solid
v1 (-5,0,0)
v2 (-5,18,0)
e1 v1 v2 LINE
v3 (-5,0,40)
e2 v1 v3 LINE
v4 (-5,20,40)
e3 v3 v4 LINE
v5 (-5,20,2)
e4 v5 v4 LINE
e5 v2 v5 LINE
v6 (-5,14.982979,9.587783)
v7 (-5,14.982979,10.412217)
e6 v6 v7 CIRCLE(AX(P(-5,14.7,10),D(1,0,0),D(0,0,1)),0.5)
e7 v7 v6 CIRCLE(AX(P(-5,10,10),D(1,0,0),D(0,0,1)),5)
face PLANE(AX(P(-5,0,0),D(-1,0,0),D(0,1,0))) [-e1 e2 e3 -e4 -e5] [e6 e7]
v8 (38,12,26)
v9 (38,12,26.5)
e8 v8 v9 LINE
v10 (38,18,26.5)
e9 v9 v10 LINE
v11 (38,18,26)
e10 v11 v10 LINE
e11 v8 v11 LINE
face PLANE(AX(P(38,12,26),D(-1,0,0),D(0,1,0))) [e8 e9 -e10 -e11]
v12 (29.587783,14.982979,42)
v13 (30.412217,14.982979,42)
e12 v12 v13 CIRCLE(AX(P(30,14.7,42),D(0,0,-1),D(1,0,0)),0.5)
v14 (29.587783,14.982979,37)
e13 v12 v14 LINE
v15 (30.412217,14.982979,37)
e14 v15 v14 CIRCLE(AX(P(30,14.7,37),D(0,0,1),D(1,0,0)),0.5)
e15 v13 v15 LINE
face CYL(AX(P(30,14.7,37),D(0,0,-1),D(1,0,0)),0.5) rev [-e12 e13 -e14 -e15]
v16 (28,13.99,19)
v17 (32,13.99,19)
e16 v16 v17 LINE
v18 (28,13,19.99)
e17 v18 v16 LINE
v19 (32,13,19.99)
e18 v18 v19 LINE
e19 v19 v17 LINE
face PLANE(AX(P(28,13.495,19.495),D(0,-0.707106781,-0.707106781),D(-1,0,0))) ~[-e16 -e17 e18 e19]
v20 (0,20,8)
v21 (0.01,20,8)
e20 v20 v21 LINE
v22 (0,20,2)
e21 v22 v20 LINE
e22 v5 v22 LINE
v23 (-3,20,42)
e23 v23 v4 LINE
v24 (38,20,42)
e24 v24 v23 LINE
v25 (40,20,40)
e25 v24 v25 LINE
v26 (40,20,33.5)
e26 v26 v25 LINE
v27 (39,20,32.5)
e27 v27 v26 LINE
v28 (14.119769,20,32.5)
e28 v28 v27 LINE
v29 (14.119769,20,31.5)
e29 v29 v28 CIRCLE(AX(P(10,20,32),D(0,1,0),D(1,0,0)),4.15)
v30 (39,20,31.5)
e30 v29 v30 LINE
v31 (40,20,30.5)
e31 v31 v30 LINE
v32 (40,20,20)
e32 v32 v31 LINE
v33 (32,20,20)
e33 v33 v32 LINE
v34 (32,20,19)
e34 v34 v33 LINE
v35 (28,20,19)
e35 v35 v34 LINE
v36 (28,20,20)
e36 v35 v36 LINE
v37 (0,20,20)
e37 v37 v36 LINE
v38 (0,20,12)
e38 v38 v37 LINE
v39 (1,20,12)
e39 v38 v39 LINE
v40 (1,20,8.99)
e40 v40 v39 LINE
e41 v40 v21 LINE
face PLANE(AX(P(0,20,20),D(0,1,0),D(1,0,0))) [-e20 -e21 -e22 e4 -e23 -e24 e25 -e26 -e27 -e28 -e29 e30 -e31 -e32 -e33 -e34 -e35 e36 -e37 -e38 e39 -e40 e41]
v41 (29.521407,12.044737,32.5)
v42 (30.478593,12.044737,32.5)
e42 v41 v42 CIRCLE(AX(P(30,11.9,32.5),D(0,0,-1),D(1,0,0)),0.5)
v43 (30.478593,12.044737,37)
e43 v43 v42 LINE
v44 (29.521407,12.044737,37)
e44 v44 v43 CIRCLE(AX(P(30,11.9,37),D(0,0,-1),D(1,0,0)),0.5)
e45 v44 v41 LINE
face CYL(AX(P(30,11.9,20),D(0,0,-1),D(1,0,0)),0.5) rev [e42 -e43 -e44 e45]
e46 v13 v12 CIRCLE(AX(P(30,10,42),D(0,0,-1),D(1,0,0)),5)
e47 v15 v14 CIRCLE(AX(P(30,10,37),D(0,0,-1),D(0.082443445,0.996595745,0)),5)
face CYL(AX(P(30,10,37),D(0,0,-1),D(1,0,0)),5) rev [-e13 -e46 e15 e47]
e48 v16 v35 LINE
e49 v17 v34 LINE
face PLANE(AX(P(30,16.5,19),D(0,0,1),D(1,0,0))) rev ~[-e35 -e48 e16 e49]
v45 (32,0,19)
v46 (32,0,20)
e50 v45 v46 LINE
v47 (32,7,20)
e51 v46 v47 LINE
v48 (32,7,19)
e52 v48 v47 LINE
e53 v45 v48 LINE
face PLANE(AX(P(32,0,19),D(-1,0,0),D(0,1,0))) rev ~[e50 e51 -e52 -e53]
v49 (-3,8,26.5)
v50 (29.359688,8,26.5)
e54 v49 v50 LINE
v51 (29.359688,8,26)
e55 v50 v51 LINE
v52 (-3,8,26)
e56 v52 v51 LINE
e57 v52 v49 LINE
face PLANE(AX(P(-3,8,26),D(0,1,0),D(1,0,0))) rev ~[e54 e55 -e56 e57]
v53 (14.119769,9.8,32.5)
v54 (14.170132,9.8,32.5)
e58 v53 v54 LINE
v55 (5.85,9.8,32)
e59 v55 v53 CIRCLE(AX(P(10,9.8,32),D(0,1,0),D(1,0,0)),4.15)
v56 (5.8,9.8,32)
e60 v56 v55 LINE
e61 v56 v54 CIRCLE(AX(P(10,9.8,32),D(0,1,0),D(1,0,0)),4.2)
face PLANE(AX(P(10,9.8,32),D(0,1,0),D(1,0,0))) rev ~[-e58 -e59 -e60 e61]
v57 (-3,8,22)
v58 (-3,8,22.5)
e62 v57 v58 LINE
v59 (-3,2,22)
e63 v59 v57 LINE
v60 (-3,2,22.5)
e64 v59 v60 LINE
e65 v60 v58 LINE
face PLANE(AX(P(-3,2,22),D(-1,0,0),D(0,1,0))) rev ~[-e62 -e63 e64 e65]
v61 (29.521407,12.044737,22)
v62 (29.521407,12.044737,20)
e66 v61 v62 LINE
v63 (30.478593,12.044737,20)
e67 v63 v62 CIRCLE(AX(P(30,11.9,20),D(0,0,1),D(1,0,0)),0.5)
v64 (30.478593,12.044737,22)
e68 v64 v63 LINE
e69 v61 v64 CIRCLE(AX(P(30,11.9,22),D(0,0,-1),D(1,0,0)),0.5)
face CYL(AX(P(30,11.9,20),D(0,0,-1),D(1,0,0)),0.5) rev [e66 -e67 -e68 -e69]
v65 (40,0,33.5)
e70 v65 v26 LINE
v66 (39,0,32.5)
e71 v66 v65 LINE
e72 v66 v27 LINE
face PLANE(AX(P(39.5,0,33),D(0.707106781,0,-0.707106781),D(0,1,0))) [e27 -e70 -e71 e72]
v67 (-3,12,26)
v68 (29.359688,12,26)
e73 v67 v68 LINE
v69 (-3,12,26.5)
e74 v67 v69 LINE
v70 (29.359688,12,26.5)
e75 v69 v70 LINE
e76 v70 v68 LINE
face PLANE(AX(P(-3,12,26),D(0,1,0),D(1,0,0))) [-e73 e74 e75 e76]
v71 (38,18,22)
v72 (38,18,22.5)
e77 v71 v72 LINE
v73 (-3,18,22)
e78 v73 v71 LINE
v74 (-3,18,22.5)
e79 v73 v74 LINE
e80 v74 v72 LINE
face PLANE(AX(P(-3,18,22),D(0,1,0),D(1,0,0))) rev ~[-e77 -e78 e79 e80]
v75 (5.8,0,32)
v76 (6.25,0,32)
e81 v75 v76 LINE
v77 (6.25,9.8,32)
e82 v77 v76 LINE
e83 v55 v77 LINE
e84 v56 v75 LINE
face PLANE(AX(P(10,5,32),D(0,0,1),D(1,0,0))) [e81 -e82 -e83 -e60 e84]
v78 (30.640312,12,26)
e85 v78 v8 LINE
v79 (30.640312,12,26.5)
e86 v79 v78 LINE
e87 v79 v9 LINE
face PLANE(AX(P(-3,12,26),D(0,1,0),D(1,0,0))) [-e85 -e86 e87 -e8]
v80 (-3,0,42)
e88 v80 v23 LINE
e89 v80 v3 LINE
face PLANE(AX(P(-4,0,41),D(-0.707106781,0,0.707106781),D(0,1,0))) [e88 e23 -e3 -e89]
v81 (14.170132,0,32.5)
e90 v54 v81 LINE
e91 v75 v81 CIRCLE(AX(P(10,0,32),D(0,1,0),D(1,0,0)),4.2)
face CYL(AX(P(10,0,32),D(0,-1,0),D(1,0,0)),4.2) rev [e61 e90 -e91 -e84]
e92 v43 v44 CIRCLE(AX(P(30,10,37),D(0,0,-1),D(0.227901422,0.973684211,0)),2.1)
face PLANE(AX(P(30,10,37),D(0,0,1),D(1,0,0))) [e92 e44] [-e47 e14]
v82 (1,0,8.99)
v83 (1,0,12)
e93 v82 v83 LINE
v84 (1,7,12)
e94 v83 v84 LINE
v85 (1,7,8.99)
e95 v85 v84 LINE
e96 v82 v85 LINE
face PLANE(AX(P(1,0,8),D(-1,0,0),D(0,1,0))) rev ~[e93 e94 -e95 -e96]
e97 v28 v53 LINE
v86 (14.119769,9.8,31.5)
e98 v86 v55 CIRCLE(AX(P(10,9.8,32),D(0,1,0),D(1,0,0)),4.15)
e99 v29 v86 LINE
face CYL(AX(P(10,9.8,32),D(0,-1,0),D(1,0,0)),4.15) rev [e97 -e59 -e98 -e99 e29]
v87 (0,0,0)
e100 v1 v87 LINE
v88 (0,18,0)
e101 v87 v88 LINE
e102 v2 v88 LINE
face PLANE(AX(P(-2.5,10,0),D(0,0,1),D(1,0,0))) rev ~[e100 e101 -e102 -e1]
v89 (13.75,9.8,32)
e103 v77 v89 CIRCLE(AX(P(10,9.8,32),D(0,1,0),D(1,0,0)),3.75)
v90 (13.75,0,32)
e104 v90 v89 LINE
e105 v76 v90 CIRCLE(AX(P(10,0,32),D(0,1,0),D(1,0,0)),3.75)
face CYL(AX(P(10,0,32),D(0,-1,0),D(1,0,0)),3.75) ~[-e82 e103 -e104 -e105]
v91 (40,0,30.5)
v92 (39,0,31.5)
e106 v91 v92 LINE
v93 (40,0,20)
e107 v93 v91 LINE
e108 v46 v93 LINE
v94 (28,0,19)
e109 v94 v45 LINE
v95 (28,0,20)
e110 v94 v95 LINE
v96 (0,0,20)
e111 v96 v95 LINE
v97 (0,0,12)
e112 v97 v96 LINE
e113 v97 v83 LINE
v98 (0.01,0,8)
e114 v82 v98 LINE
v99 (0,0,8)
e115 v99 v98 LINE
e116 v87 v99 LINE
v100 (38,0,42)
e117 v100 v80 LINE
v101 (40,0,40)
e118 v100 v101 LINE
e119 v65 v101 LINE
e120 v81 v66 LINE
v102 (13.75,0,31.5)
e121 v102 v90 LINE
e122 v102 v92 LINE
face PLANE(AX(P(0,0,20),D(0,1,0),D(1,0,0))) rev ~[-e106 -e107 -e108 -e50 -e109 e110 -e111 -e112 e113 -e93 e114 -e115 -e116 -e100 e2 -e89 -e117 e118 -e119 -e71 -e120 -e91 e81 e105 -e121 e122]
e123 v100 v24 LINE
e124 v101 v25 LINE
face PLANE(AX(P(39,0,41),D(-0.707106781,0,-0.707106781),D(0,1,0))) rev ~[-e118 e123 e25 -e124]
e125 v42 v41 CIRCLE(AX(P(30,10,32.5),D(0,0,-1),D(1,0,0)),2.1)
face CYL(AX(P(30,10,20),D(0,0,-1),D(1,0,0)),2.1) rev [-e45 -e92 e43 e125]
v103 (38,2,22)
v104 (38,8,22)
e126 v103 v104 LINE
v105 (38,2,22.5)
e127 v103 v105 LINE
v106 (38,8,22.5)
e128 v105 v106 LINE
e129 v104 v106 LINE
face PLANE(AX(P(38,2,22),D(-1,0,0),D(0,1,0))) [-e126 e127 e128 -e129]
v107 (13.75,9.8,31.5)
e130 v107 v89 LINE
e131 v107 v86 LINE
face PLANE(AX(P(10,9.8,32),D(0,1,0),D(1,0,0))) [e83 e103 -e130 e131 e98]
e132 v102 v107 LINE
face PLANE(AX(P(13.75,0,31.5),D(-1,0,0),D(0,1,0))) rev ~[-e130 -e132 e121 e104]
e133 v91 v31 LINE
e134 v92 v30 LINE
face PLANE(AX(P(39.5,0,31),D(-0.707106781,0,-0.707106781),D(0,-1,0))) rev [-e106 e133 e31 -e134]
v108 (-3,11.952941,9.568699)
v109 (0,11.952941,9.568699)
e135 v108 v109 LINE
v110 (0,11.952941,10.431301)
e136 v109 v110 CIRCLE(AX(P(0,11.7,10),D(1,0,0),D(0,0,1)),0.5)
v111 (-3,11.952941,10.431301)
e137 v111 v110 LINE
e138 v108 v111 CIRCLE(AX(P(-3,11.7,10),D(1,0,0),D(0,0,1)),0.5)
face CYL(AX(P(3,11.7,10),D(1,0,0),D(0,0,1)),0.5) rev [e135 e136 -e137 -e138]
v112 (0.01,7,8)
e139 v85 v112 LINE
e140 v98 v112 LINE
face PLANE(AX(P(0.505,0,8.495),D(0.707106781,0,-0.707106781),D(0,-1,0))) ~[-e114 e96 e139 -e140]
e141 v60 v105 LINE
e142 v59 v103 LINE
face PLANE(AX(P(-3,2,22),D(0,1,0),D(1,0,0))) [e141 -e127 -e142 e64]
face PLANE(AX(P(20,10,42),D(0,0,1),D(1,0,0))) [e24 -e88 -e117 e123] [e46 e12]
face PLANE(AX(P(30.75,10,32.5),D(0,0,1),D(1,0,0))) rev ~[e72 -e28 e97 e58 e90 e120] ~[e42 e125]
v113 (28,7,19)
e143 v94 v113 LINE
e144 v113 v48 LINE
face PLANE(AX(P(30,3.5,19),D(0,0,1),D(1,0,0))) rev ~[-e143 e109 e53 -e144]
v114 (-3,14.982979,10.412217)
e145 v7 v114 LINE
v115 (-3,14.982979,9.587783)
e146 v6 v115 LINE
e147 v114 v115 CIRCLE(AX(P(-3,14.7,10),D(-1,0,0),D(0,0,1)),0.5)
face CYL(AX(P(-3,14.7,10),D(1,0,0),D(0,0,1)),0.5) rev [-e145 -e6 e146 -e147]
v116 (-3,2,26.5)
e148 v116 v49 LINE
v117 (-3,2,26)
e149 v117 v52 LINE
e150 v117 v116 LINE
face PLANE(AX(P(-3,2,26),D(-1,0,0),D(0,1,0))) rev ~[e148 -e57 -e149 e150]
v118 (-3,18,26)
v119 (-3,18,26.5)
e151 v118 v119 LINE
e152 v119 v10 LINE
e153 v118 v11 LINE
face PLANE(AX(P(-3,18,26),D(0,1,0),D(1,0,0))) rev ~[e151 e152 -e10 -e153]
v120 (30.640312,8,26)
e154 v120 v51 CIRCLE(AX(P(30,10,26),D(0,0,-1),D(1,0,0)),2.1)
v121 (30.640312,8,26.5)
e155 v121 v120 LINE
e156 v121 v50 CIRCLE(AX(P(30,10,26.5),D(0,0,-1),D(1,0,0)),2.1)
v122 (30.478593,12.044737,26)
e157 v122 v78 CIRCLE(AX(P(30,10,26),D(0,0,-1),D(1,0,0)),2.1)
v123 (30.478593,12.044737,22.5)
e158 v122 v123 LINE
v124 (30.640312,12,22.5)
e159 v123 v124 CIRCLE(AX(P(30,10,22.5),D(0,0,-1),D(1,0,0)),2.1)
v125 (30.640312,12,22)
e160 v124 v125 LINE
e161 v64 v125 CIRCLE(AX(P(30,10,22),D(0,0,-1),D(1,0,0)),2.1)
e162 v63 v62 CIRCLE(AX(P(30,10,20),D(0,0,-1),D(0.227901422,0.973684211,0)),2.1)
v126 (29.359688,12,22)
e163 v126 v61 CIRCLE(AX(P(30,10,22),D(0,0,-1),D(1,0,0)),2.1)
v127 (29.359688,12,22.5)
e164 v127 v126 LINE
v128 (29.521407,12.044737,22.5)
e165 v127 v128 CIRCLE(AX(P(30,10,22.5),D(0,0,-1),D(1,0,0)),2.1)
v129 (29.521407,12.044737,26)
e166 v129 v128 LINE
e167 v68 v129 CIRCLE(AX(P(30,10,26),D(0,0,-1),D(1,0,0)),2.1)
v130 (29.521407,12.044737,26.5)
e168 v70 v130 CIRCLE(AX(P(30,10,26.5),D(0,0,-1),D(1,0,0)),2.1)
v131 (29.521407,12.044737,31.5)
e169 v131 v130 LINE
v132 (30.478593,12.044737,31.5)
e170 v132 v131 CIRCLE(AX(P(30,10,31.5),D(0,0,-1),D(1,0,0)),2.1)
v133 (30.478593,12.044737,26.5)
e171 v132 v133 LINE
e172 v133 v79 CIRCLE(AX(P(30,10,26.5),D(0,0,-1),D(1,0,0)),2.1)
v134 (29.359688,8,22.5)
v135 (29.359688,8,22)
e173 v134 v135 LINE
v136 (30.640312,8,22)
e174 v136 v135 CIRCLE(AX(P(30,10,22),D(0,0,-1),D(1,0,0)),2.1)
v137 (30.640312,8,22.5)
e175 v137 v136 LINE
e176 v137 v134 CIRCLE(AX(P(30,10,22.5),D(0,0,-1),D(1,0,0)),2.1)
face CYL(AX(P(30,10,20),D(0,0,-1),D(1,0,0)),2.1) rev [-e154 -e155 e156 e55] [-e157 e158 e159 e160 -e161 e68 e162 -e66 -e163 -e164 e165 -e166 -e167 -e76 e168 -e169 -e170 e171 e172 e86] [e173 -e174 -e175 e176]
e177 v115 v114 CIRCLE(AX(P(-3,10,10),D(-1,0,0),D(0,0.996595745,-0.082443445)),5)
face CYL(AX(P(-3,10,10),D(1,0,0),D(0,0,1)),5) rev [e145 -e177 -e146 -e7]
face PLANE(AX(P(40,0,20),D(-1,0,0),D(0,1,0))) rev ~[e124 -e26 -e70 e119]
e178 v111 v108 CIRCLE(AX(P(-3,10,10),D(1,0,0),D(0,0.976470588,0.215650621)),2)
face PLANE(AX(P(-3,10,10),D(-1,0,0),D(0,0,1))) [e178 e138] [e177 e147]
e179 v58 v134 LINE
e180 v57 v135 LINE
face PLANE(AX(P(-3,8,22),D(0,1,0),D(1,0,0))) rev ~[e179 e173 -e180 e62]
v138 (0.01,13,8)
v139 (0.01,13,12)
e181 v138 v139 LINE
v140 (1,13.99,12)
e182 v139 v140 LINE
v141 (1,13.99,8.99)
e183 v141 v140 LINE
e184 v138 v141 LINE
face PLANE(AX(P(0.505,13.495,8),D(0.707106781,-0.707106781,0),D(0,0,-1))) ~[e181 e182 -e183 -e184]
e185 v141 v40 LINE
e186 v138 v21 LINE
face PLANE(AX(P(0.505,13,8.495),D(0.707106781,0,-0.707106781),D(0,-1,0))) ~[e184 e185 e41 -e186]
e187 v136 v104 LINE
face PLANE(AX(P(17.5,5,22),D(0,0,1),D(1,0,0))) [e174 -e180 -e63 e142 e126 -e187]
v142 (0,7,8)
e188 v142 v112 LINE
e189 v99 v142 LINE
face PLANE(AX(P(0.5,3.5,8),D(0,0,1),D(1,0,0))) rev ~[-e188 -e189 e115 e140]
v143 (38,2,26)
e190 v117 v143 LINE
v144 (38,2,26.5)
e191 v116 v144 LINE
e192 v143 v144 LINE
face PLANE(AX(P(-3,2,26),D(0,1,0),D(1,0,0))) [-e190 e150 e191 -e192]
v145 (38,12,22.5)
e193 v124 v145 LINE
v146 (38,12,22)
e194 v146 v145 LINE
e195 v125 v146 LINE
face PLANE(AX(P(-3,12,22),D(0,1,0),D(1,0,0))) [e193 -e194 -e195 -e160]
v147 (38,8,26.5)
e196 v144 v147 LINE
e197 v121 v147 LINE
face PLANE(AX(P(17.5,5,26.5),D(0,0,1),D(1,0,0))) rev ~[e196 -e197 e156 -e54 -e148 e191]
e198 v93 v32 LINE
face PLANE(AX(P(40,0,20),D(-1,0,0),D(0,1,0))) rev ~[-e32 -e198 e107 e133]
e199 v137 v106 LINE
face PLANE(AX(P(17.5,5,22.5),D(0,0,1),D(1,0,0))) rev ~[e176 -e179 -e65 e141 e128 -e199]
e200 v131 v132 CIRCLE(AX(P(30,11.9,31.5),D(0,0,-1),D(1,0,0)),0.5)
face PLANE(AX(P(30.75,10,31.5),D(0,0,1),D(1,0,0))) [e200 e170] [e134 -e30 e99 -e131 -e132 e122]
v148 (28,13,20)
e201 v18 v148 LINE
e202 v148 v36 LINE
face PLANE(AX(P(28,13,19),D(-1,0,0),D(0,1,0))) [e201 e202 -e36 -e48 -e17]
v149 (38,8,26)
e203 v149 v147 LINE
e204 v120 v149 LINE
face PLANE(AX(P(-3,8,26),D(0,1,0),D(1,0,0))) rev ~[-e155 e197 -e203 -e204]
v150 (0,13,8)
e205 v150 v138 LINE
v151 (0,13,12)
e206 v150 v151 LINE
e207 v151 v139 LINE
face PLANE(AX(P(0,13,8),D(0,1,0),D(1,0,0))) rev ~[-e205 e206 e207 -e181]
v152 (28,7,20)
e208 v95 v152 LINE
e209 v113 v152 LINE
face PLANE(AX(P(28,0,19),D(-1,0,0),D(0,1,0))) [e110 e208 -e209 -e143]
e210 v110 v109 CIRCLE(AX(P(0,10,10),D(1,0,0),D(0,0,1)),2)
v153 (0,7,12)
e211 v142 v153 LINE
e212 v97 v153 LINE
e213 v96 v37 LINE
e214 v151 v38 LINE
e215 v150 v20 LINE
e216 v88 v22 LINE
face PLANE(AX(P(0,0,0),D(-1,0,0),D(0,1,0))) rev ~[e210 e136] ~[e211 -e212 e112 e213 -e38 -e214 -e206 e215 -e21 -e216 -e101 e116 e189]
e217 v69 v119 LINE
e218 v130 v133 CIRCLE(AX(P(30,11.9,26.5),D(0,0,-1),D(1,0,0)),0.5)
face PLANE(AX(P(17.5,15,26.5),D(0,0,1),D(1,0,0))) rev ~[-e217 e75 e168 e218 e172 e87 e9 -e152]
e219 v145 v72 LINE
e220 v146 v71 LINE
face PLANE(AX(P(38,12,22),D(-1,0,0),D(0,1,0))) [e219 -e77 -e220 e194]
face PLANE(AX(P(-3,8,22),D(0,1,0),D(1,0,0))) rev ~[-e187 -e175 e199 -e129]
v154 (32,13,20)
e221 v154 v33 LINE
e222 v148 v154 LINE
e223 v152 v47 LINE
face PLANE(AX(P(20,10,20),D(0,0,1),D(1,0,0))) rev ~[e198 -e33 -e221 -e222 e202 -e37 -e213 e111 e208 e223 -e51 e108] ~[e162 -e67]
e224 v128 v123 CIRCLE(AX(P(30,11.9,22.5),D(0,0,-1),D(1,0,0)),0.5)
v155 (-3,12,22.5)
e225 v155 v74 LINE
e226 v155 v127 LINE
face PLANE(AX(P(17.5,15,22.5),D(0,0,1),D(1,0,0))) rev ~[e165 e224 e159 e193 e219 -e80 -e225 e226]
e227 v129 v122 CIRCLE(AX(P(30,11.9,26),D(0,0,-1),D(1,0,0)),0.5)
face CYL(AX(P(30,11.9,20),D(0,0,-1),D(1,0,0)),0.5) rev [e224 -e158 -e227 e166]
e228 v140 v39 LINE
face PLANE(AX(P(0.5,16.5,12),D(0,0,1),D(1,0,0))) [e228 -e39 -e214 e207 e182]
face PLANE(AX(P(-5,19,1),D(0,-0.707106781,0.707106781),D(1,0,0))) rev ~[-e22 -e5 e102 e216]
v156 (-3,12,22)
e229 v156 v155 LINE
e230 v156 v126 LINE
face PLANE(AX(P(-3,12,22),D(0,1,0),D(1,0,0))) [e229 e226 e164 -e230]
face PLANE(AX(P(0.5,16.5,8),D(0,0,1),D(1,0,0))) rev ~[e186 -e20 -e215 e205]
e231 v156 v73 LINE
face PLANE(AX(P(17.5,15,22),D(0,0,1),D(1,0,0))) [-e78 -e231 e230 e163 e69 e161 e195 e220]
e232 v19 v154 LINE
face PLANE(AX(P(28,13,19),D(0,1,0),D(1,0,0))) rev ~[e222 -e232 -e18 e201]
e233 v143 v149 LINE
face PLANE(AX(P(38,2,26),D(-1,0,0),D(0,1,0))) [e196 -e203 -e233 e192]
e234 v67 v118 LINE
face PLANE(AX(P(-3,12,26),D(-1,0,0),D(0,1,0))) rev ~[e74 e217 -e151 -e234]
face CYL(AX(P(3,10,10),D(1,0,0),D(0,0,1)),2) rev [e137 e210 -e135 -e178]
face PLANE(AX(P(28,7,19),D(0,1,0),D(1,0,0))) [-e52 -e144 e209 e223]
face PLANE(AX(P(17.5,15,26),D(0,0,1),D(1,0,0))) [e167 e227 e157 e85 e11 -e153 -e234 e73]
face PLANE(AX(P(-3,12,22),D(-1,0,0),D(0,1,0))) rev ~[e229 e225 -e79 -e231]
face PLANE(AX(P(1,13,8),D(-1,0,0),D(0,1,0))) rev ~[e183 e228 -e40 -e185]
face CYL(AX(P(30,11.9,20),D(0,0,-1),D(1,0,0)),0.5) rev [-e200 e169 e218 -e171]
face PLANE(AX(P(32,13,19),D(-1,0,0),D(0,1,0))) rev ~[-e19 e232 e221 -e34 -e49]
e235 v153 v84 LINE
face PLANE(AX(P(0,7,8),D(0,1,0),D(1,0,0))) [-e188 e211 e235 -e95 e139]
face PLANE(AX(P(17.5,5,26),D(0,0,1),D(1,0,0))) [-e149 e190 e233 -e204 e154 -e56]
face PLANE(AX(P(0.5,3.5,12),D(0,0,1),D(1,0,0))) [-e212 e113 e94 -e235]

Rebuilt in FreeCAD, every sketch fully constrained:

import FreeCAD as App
import Part
import Sketcher
from FreeCAD import Vector


def edges_at(feature, points):
    """Names of the edges that pass closest to the given points."""
    edges = feature.Shape.Edges
    near = lambda p: min(range(len(edges)), key=lambda i: edges[i].distToShape(Part.Vertex(*p))[0])
    return sorted({f"Edge{near(p) + 1}" for p in points})


def add_polygon(sketch, points):
    """Adds a closed chain of lines whose ends are joined by coincident constraints."""
    first, n = sketch.GeometryCount, len(points)
    for a, b in zip(points, points[1:] + points[:1]):
        sketch.addGeometry(Part.LineSegment(App.Vector(*a, 0), App.Vector(*b, 0)), False)
    for i in range(n):
        sketch.addConstraint(Sketcher.Constraint("Coincident", first + i, 2, first + (i + 1) % n, 1))

doc = App.newDocument("Part")
body = doc.addObject("PartDesign::Body", "Body")

# Sketch on XY plane
sketch1 = body.newObject("Sketcher::SketchObject", "Sketch")
sketch1.AttachmentSupport = (doc.getObject("XY_Plane"), [""])
sketch1.MapMode = "FlatFace"
sketch1.AttachmentOffset = App.Placement(Vector(0, 0, 26), App.Rotation())
add_polygon(sketch1, [(-3, 8), (-3, 2), (38, 2), (38, 8)])  # lines 0-3
sketch1.addConstraint([
    Sketcher.Constraint("Vertical", 0),
    Sketcher.Constraint("Horizontal", 1),
    Sketcher.Constraint("Vertical", 2),
    Sketcher.Constraint("Horizontal", 3),
    Sketcher.Constraint("DistanceX", 1, 1, 1, 2, 41.0),
    Sketcher.Constraint("DistanceY", 0, 2, 0, 1, 6.0),
    Sketcher.Constraint("DistanceX", 0, 2, -1, 1, 3.0),
    Sketcher.Constraint("DistanceY", -1, 1, 0, 2, 2.0),
])
pad1 = body.newObject("PartDesign::Pad", "Pad")
pad1.Profile = sketch1
pad1.Length = 0.5
body2 = doc.addObject("PartDesign::Body", "Body001")

# Sketch on XY plane
sketch2 = body2.newObject("Sketcher::SketchObject", "Sketch001")
sketch2.AttachmentSupport = (doc.getObject("XY_Plane001"), [""])
sketch2.MapMode = "FlatFace"
sketch2.AttachmentOffset = App.Placement(Vector(0, 0, 26), App.Rotation())
add_polygon(sketch2, [(-3, 18), (-3, 12), (38, 12), (38, 18)])  # lines 0-3
sketch2.addConstraint([
    Sketcher.Constraint("Vertical", 0),
    Sketcher.Constraint("Horizontal", 1),
    Sketcher.Constraint("Vertical", 2),
    Sketcher.Constraint("Horizontal", 3),
    Sketcher.Constraint("DistanceX", 1, 1, 1, 2, 41.0),
    Sketcher.Constraint("DistanceY", 0, 2, 0, 1, 6.0),
    Sketcher.Constraint("DistanceX", 0, 2, -1, 1, 3.0),
    Sketcher.Constraint("DistanceY", -1, 1, 0, 2, 12.0),
])
pad2 = body2.newObject("PartDesign::Pad", "Pad001")
pad2.Profile = sketch2
pad2.Length = 0.5
body3 = doc.addObject("PartDesign::Body", "Body002")

# Sketch on XY plane
sketch3 = body3.newObject("Sketcher::SketchObject", "Sketch002")
sketch3.AttachmentSupport = (doc.getObject("XY_Plane002"), [""])
sketch3.MapMode = "FlatFace"
sketch3.AttachmentOffset = App.Placement(Vector(0, 0, 22), App.Rotation())
add_polygon(sketch3, [(-3, 18), (-3, 12), (38, 12), (38, 18)])  # lines 0-3
sketch3.addConstraint([
    Sketcher.Constraint("Vertical", 0),
    Sketcher.Constraint("Horizontal", 1),
    Sketcher.Constraint("Vertical", 2),
    Sketcher.Constraint("Horizontal", 3),
    Sketcher.Constraint("DistanceX", 1, 1, 1, 2, 41.0),
    Sketcher.Constraint("DistanceY", 0, 2, 0, 1, 6.0),
    Sketcher.Constraint("DistanceX", 0, 2, -1, 1, 3.0),
    Sketcher.Constraint("DistanceY", -1, 1, 0, 2, 12.0),
])
pad3 = body3.newObject("PartDesign::Pad", "Pad002")
pad3.Profile = sketch3
pad3.Length = 0.5
body4 = doc.addObject("PartDesign::Body", "Body003")
body4.AllowCompound = True

# Sketch on XY plane
sketch4 = body4.newObject("Sketcher::SketchObject", "Sketch003")
sketch4.AttachmentSupport = (doc.getObject("XY_Plane003"), [""])
sketch4.MapMode = "FlatFace"
sketch4.AttachmentOffset = App.Placement(Vector(0, 0, 22), App.Rotation())
add_polygon(sketch4, [(-3, 8), (-3, 2), (38, 2), (38, 8)])  # lines 0-3
sketch4.addConstraint([
    Sketcher.Constraint("Vertical", 0),
    Sketcher.Constraint("Horizontal", 1),
    Sketcher.Constraint("Vertical", 2),
    Sketcher.Constraint("Horizontal", 3),
    Sketcher.Constraint("DistanceX", 1, 1, 1, 2, 41.0),
    Sketcher.Constraint("DistanceY", 0, 2, 0, 1, 6.0),
    Sketcher.Constraint("DistanceX", 0, 2, -1, 1, 3.0),
    Sketcher.Constraint("DistanceY", -1, 1, 0, 2, 2.0),
])
pad4 = body4.newObject("PartDesign::Pad", "Pad003")
pad4.Profile = sketch4
pad4.Length = 0.5
doc.recompute()

boolean = body4.newObject("PartDesign::Boolean", "Boolean")
boolean.Type = "Fuse"
boolean.addObjects([body])
doc.recompute()

boolean2 = body4.newObject("PartDesign::Boolean", "Boolean001")
boolean2.Type = "Fuse"
boolean2.addObjects([body2])
doc.recompute()

boolean3 = body4.newObject("PartDesign::Boolean", "Boolean002")
boolean3.Type = "Fuse"
boolean3.addObjects([body3])
body5 = doc.addObject("PartDesign::Body", "Body004")

# Sketch on XY plane
sketch5 = body5.newObject("Sketcher::SketchObject", "Sketch004")
sketch5.AttachmentSupport = (doc.getObject("XY_Plane004"), [""])
sketch5.MapMode = "FlatFace"
sketch5.AttachmentOffset = App.Placement(Vector(0, 0, 8), App.Rotation())
add_polygon(sketch5, [(0, 20), (0, 13), (1, 13), (1, 20)])  # lines 0-3
sketch5.addConstraint([
    Sketcher.Constraint("Vertical", 0),
    Sketcher.Constraint("Horizontal", 1),
    Sketcher.Constraint("Vertical", 2),
    Sketcher.Constraint("Horizontal", 3),
    Sketcher.Constraint("PointOnObject", 0, 2, -2),
    Sketcher.Constraint("DistanceX", 1, 1, 1, 2, 1.0),
    Sketcher.Constraint("DistanceY", 0, 2, 0, 1, 7.0),
    Sketcher.Constraint("DistanceY", -1, 1, 0, 2, 13.0),
])
pad5 = body5.newObject("PartDesign::Pad", "Pad004")
pad5.Profile = sketch5
pad5.Length = 4
doc.recompute()

chamfer = body5.newObject("PartDesign::Chamfer", "Chamfer")
chamfer.Base = (pad5, edges_at(pad5, [(1, 13, 10), (1, 16.5, 8)]))
chamfer.Size = 0.99
body6 = doc.addObject("PartDesign::Body", "Body005")

# Sketch on XY plane
sketch6 = body6.newObject("Sketcher::SketchObject", "Sketch005")
sketch6.AttachmentSupport = (doc.getObject("XY_Plane005"), [""])
sketch6.MapMode = "FlatFace"
sketch6.AttachmentOffset = App.Placement(Vector(0, 0, 19), App.Rotation())
add_polygon(sketch6, [(28, 7), (28, 0), (32, 0), (32, 7)])  # lines 0-3
sketch6.addConstraint([
    Sketcher.Constraint("Vertical", 0),
    Sketcher.Constraint("Horizontal", 1),
    Sketcher.Constraint("Vertical", 2),
    Sketcher.Constraint("Horizontal", 3),
    Sketcher.Constraint("PointOnObject", 0, 2, -1),
    Sketcher.Constraint("DistanceX", 1, 1, 1, 2, 4.0),
    Sketcher.Constraint("DistanceY", 0, 2, 0, 1, 7.0),
    Sketcher.Constraint("DistanceX", -1, 1, 0, 2, 28.0),
])
pad6 = body6.newObject("PartDesign::Pad", "Pad005")
pad6.Profile = sketch6
pad6.Length = 1
body7 = doc.addObject("PartDesign::Body", "Body006")

# Sketch on XY plane
sketch7 = body7.newObject("Sketcher::SketchObject", "Sketch006")
sketch7.AttachmentSupport = (doc.getObject("XY_Plane006"), [""])
sketch7.MapMode = "FlatFace"
sketch7.AttachmentOffset = App.Placement(Vector(0, 0, 19), App.Rotation())
add_polygon(sketch7, [(28, 20), (28, 13), (32, 13), (32, 20)])  # lines 0-3
sketch7.addConstraint([
    Sketcher.Constraint("Vertical", 0),
    Sketcher.Constraint("Horizontal", 1),
    Sketcher.Constraint("Vertical", 2),
    Sketcher.Constraint("Horizontal", 3),
    Sketcher.Constraint("DistanceX", 1, 1, 1, 2, 4.0),
    Sketcher.Constraint("DistanceY", 0, 2, 0, 1, 7.0),
    Sketcher.Constraint("DistanceX", -1, 1, 0, 2, 28.0),
    Sketcher.Constraint("DistanceY", -1, 1, 0, 2, 13.0),
])
pad7 = body7.newObject("PartDesign::Pad", "Pad006")
pad7.Profile = sketch7
pad7.Length = 1
doc.recompute()

chamfer2 = body7.newObject("PartDesign::Chamfer", "Chamfer001")
chamfer2.Base = (pad7, edges_at(pad7, [(30, 13, 19)]))
chamfer2.Size = 0.99
body8 = doc.addObject("PartDesign::Body", "Body007")
body8.AllowCompound = True

# Sketch on XY plane
sketch8 = body8.newObject("Sketcher::SketchObject", "Sketch007")
sketch8.AttachmentSupport = (doc.getObject("XY_Plane007"), [""])
sketch8.MapMode = "FlatFace"
sketch8.AttachmentOffset = App.Placement(Vector(0, 0, 8), App.Rotation())
add_polygon(sketch8, [(0, 7), (0, 0), (1, 0), (1, 7)])  # lines 0-3
sketch8.addConstraint([
    Sketcher.Constraint("Vertical", 0),
    Sketcher.Constraint("Horizontal", 1),
    Sketcher.Constraint("Vertical", 2),
    Sketcher.Constraint("Horizontal", 3),
    Sketcher.Constraint("Coincident", 0, 2, -1, 1),
    Sketcher.Constraint("DistanceX", 1, 1, 1, 2, 1.0),
    Sketcher.Constraint("DistanceY", 0, 2, 0, 1, 7.0),
])
pad8 = body8.newObject("PartDesign::Pad", "Pad007")
pad8.Profile = sketch8
pad8.Length = 4
doc.recompute()

chamfer3 = body8.newObject("PartDesign::Chamfer", "Chamfer002")
chamfer3.Base = (pad8, edges_at(pad8, [(1, 3.5, 8)]))
chamfer3.Size = 0.99
doc.recompute()

boolean4 = body8.newObject("PartDesign::Boolean", "Boolean003")
boolean4.Type = "Fuse"
boolean4.addObjects([body5])
doc.recompute()

boolean5 = body8.newObject("PartDesign::Boolean", "Boolean004")
boolean5.Type = "Fuse"
boolean5.addObjects([body6])
doc.recompute()

boolean6 = body8.newObject("PartDesign::Boolean", "Boolean005")
boolean6.Type = "Fuse"
boolean6.addObjects([body7])
body9 = doc.addObject("PartDesign::Body", "Body008")

# Sketch on YZ plane
sketch9 = body9.newObject("Sketcher::SketchObject", "Sketch008")
sketch9.AttachmentSupport = (doc.getObject("YZ_Plane008"), [""])
sketch9.MapMode = "FlatFace"
sketch9.AttachmentOffset = App.Placement(Vector(0, 0, -3), App.Rotation())
sketch9.addGeometry(Part.Circle(Vector(14.7, 10, 0), Vector(0, 0, 1), 0.5), False)
sketch9.addConstraint([
    Sketcher.Constraint("Diameter", 0, 1.0),
    Sketcher.Constraint("DistanceY", -1, 1, 0, 3, 10.0),
    Sketcher.Constraint("DistanceX", -1, 1, 0, 3, 14.7),
])
pad9 = body9.newObject("PartDesign::Pad", "Pad008")
pad9.Profile = sketch9
pad9.Length = 4
pad9.Reversed = True
body10 = doc.addObject("PartDesign::Body", "Body009")

# Sketch on YZ plane
sketch10 = body10.newObject("Sketcher::SketchObject", "Sketch009")
sketch10.AttachmentSupport = (doc.getObject("YZ_Plane009"), [""])
sketch10.MapMode = "FlatFace"
sketch10.AttachmentOffset = App.Placement(Vector(0, 0, -3), App.Rotation())
sketch10.addGeometry(Part.Circle(Vector(10, 10, 0), Vector(0, 0, 1), 5), False)
sketch10.addConstraint([
    Sketcher.Constraint("Diameter", 0, 10.0),
    Sketcher.Constraint("DistanceX", -1, 1, 0, 3, 10.0),
    Sketcher.Constraint("DistanceY", -1, 1, 0, 3, 10.0),
])
pad10 = body10.newObject("PartDesign::Pad", "Pad009")
pad10.Profile = sketch10
pad10.Length = 4
pad10.Reversed = True
body11 = doc.addObject("PartDesign::Body", "Body010")

# Sketch on YZ plane
sketch11 = body11.newObject("Sketcher::SketchObject", "Sketch010")
sketch11.AttachmentSupport = (doc.getObject("YZ_Plane010"), [""])
sketch11.MapMode = "FlatFace"
sketch11.AttachmentOffset = App.Placement(Vector(0, 0, 3), App.Rotation())
sketch11.addGeometry(Part.Circle(Vector(10, 10, 0), Vector(0, 0, 1), 2), False)
sketch11.addConstraint([
    Sketcher.Constraint("Diameter", 0, 4.0),
    Sketcher.Constraint("DistanceX", -1, 1, 0, 3, 10.0),
    Sketcher.Constraint("DistanceY", -1, 1, 0, 3, 10.0),
])
pad11 = body11.newObject("PartDesign::Pad", "Pad010")
pad11.Profile = sketch11
pad11.Length = 10
pad11.Reversed = True
body12 = doc.addObject("PartDesign::Body", "Body011")
body12.AllowCompound = True

# Sketch on YZ plane
sketch12 = body12.newObject("Sketcher::SketchObject", "Sketch011")
sketch12.AttachmentSupport = (doc.getObject("YZ_Plane011"), [""])
sketch12.MapMode = "FlatFace"
sketch12.AttachmentOffset = App.Placement(Vector(0, 0, 3), App.Rotation())
sketch12.addGeometry(Part.Circle(Vector(11.7, 10, 0), Vector(0, 0, 1), 0.5), False)
sketch12.addConstraint([
    Sketcher.Constraint("Diameter", 0, 1.0),
    Sketcher.Constraint("DistanceY", -1, 1, 0, 3, 10.0),
    Sketcher.Constraint("DistanceX", -1, 1, 0, 3, 11.7),
])
pad12 = body12.newObject("PartDesign::Pad", "Pad011")
pad12.Profile = sketch12
pad12.Length = 10
pad12.Reversed = True
doc.recompute()

boolean7 = body12.newObject("PartDesign::Boolean", "Boolean006")
boolean7.Type = "Fuse"
boolean7.addObjects([body9])
doc.recompute()

boolean8 = body12.newObject("PartDesign::Boolean", "Boolean007")
boolean8.Type = "Fuse"
boolean8.addObjects([body10])
doc.recompute()

boolean9 = body12.newObject("PartDesign::Boolean", "Boolean008")
boolean9.Type = "Fuse"
boolean9.addObjects([body11])
body13 = doc.addObject("PartDesign::Body", "Body012")

# Sketch on XY plane
sketch13 = body13.newObject("Sketcher::SketchObject", "Sketch012")
sketch13.AttachmentSupport = (doc.getObject("XY_Plane012"), [""])
sketch13.MapMode = "FlatFace"
sketch13.AttachmentOffset = App.Placement(Vector(0, 0, 20), App.Rotation())
sketch13.addGeometry(Part.Circle(Vector(30, 10, 0), Vector(0, 0, 1), 2.1), False)
sketch13.addConstraint([
    Sketcher.Constraint("Diameter", 0, 4.2),
    Sketcher.Constraint("DistanceX", -1, 1, 0, 3, 30.0),
    Sketcher.Constraint("DistanceY", -1, 1, 0, 3, 10.0),
])
pad13 = body13.newObject("PartDesign::Pad", "Pad012")
pad13.Profile = sketch13
pad13.Length = 22
body14 = doc.addObject("PartDesign::Body", "Body013")

# Sketch on XY plane
sketch14 = body14.newObject("Sketcher::SketchObject", "Sketch013")
sketch14.AttachmentSupport = (doc.getObject("XY_Plane013"), [""])
sketch14.MapMode = "FlatFace"
sketch14.AttachmentOffset = App.Placement(Vector(0, 0, 37), App.Rotation())
sketch14.addGeometry(Part.Circle(Vector(30, 14.7, 0), Vector(0, 0, 1), 0.5), False)
sketch14.addConstraint([
    Sketcher.Constraint("Diameter", 0, 1.0),
    Sketcher.Constraint("DistanceX", -1, 1, 0, 3, 30.0),
    Sketcher.Constraint("DistanceY", -1, 1, 0, 3, 14.7),
])
pad14 = body14.newObject("PartDesign::Pad", "Pad013")
pad14.Profile = sketch14
pad14.Length = 10
body15 = doc.addObject("PartDesign::Body", "Body014")

# Sketch on XY plane
sketch15 = body15.newObject("Sketcher::SketchObject", "Sketch014")
sketch15.AttachmentSupport = (doc.getObject("XY_Plane014"), [""])
sketch15.MapMode = "FlatFace"
sketch15.AttachmentOffset = App.Placement(Vector(0, 0, 20), App.Rotation())
sketch15.addGeometry(Part.Circle(Vector(30, 11.9, 0), Vector(0, 0, 1), 0.5), False)
sketch15.addConstraint([
    Sketcher.Constraint("Diameter", 0, 1.0),
    Sketcher.Constraint("DistanceX", -1, 1, 0, 3, 30.0),
    Sketcher.Constraint("DistanceY", -1, 1, 0, 3, 11.9),
])
pad15 = body15.newObject("PartDesign::Pad", "Pad014")
pad15.Profile = sketch15
pad15.Length = 22
body16 = doc.addObject("PartDesign::Body", "Body015")

# Sketch on XY plane
sketch16 = body16.newObject("Sketcher::SketchObject", "Sketch015")
sketch16.AttachmentSupport = (doc.getObject("XY_Plane015"), [""])
sketch16.MapMode = "FlatFace"
sketch16.AttachmentOffset = App.Placement(Vector(0, 0, 37), App.Rotation())
sketch16.addGeometry(Part.Circle(Vector(30, 10, 0), Vector(0, 0, 1), 5), False)
sketch16.addConstraint([
    Sketcher.Constraint("Diameter", 0, 10.0),
    Sketcher.Constraint("DistanceX", -1, 1, 0, 3, 30.0),
    Sketcher.Constraint("DistanceY", -1, 1, 0, 3, 10.0),
])
pad16 = body16.newObject("PartDesign::Pad", "Pad015")
pad16.Profile = sketch16
pad16.Length = 10
doc.recompute()

boolean10 = body16.newObject("PartDesign::Boolean", "Boolean009")
boolean10.Type = "Fuse"
boolean10.addObjects([body13])
doc.recompute()

boolean11 = body16.newObject("PartDesign::Boolean", "Boolean010")
boolean11.Type = "Fuse"
boolean11.addObjects([body14])
doc.recompute()

boolean12 = body16.newObject("PartDesign::Boolean", "Boolean011")
boolean12.Type = "Fuse"
boolean12.addObjects([body15])
body17 = doc.addObject("PartDesign::Body", "Body016")

# Sketch on XY plane
sketch17 = body17.newObject("Sketcher::SketchObject", "Sketch016")
sketch17.AttachmentSupport = (doc.getObject("XY_Plane016"), [""])
sketch17.MapMode = "FlatFace"
sketch17.AttachmentOffset = App.Placement(Vector(0, 0, 31.5), App.Rotation())
add_polygon(sketch17, [(14, 20), (14, 0), (48, 0), (48, 20)])  # lines 0-3
sketch17.addConstraint([
    Sketcher.Constraint("Vertical", 0),
    Sketcher.Constraint("Horizontal", 1),
    Sketcher.Constraint("Vertical", 2),
    Sketcher.Constraint("Horizontal", 3),
    Sketcher.Constraint("PointOnObject", 0, 2, -1),
    Sketcher.Constraint("DistanceX", 1, 1, 1, 2, 34.0),
    Sketcher.Constraint("DistanceY", 0, 2, 0, 1, 20.0),
    Sketcher.Constraint("DistanceX", -1, 1, 0, 2, 13.75),
])
pad17 = body17.newObject("PartDesign::Pad", "Pad016")
pad17.Profile = sketch17
pad17.Length = 1
body18 = doc.addObject("PartDesign::Body", "Body017")

# Sketch on XY plane
sketch18 = body18.newObject("Sketcher::SketchObject", "Sketch017")
sketch18.AttachmentSupport = (doc.getObject("XY_Plane017"), [""])
sketch18.MapMode = "FlatFace"
sketch18.AttachmentOffset = App.Placement(Vector(0, 0, 22), App.Rotation())
add_polygon(sketch18, [(5, 10), (5, 0), (15, 0), (15, 10)])  # lines 0-3
sketch18.addConstraint([
    Sketcher.Constraint("Vertical", 0),
    Sketcher.Constraint("Horizontal", 1),
    Sketcher.Constraint("Vertical", 2),
    Sketcher.Constraint("Horizontal", 3),
    Sketcher.Constraint("PointOnObject", 0, 2, -1),
    Sketcher.Constraint("Equal", 3, 0),
    Sketcher.Constraint("DistanceX", 1, 1, 1, 2, 10.0),
    Sketcher.Constraint("DistanceX", -1, 1, 0, 2, 5.0),
])
pad18 = body18.newObject("PartDesign::Pad", "Pad017")
pad18.Profile = sketch18
pad18.Length = 10
body19 = doc.addObject("PartDesign::Body", "Body018")

# Sketch on XZ plane
sketch19 = body19.newObject("Sketcher::SketchObject", "Sketch018")
sketch19.AttachmentSupport = (doc.getObject("XZ_Plane018"), [""])
sketch19.MapMode = "FlatFace"
sketch19.addGeometry(Part.Circle(Vector(10, 32, 0), Vector(0, 0, 1), 3.8), False)
sketch19.addConstraint([
    Sketcher.Constraint("Diameter", 0, 7.5),
    Sketcher.Constraint("DistanceX", -1, 1, 0, 3, 10.0),
    Sketcher.Constraint("DistanceY", -1, 1, 0, 3, 32.0),
])
pad19 = body19.newObject("PartDesign::Pad", "Pad018")
pad19.Profile = sketch19
pad19.Length = 9.8
pad19.Reversed = True
body20 = doc.addObject("PartDesign::Body", "Body019")

# Sketch on XZ plane
sketch20 = body20.newObject("Sketcher::SketchObject", "Sketch019")
sketch20.AttachmentSupport = (doc.getObject("XZ_Plane019"), [""])
sketch20.MapMode = "FlatFace"
sketch20.addGeometry(Part.Circle(Vector(10, 32, 0), Vector(0, 0, 1), 4.2), False)
sketch20.addConstraint([
    Sketcher.Constraint("Diameter", 0, 8.4),
    Sketcher.Constraint("DistanceX", -1, 1, 0, 3, 10.0),
    Sketcher.Constraint("DistanceY", -1, 1, 0, 3, 32.0),
])
pad20 = body20.newObject("PartDesign::Pad", "Pad019")
pad20.Profile = sketch20
pad20.Length = 9.8
pad20.Reversed = True
doc.recompute()

boolean13 = body20.newObject("PartDesign::Boolean", "Boolean012")
boolean13.Type = "Cut"
boolean13.addObjects([body19])
doc.recompute()

boolean14 = body20.newObject("PartDesign::Boolean", "Boolean013")
boolean14.Type = "Cut"
boolean14.addObjects([body18])
body21 = doc.addObject("PartDesign::Body", "Body020")

# Sketch on XZ plane
sketch21 = body21.newObject("Sketcher::SketchObject", "Sketch020")
sketch21.AttachmentSupport = (doc.getObject("XZ_Plane020"), [""])
sketch21.MapMode = "FlatFace"
sketch21.AttachmentOffset = App.Placement(Vector(0, 0, -9.8), App.Rotation())
sketch21.addGeometry(Part.Circle(Vector(10, 32, 0), Vector(0, 0, 1), 4.2), False)
sketch21.addConstraint([
    Sketcher.Constraint("Diameter", 0, 8.3),
    Sketcher.Constraint("DistanceX", -1, 1, 0, 3, 10.0),
    Sketcher.Constraint("DistanceY", -1, 1, 0, 3, 32.0),
])
pad21 = body21.newObject("PartDesign::Pad", "Pad020")
pad21.Profile = sketch21
pad21.Length = 10.2
pad21.Reversed = True
body22 = doc.addObject("PartDesign::Body", "Body021")

# Sketch on XY plane
sketch22 = body22.newObject("Sketcher::SketchObject", "Sketch021")
sketch22.AttachmentSupport = (doc.getObject("XY_Plane021"), [""])
sketch22.MapMode = "FlatFace"
sketch22.AttachmentOffset = App.Placement(Vector(0, 0, 20), App.Rotation())
add_polygon(sketch22, [(0, 20), (0, 0), (40, 0), (40, 20)])  # lines 0-3
sketch22.addConstraint([
    Sketcher.Constraint("Vertical", 0),
    Sketcher.Constraint("Horizontal", 1),
    Sketcher.Constraint("Vertical", 2),
    Sketcher.Constraint("Horizontal", 3),
    Sketcher.Constraint("Coincident", 0, 2, -1, 1),
    Sketcher.Constraint("DistanceX", 1, 1, 1, 2, 40.0),
    Sketcher.Constraint("DistanceY", 0, 2, 0, 1, 20.0),
])
pad22 = body22.newObject("PartDesign::Pad", "Pad021")
pad22.Profile = sketch22
pad22.Length = 22
body23 = doc.addObject("PartDesign::Body", "Body022")

# Sketch on XY plane
sketch23 = body23.newObject("Sketcher::SketchObject", "Sketch022")
sketch23.AttachmentSupport = (doc.getObject("XY_Plane022"), [""])
sketch23.MapMode = "FlatFace"
add_polygon(sketch23, [(-5, 20), (-5, 0), (0, 0), (0, 20)])  # lines 0-3
sketch23.addConstraint([
    Sketcher.Constraint("Vertical", 0),
    Sketcher.Constraint("Horizontal", 1),
    Sketcher.Constraint("Vertical", 2),
    Sketcher.Constraint("Horizontal", 3),
    Sketcher.Constraint("Coincident", 1, 2, -1, 1),
    Sketcher.Constraint("DistanceX", 1, 1, 1, 2, 5.0),
    Sketcher.Constraint("DistanceY", 0, 2, 0, 1, 20.0),
])
pad23 = body23.newObject("PartDesign::Pad", "Pad022")
pad23.Profile = sketch23
pad23.Length = 42
doc.recompute()

boolean15 = body23.newObject("PartDesign::Boolean", "Boolean014")
boolean15.Type = "Fuse"
boolean15.addObjects([body22])
doc.recompute()

boolean16 = body23.newObject("PartDesign::Boolean", "Boolean015")
boolean16.Type = "Cut"
boolean16.addObjects([body21])
doc.recompute()

boolean17 = body23.newObject("PartDesign::Boolean", "Boolean016")
boolean17.Type = "Cut"
boolean17.addObjects([body20])
doc.recompute()

boolean18 = body23.newObject("PartDesign::Boolean", "Boolean017")
boolean18.Type = "Cut"
boolean18.addObjects([body17])
doc.recompute()

boolean19 = body23.newObject("PartDesign::Boolean", "Boolean018")
boolean19.Type = "Cut"
boolean19.addObjects([body16])
doc.recompute()

boolean20 = body23.newObject("PartDesign::Boolean", "Boolean019")
boolean20.Type = "Cut"
boolean20.addObjects([body12])
doc.recompute()

chamfer4 = body23.newObject("PartDesign::Chamfer", "Chamfer003")
chamfer4.Base = (boolean20, edges_at(boolean20, [(40, 10, 31.5), (40, 10, 32.5)]))
chamfer4.Size = 1
doc.recompute()

chamfer5 = body23.newObject("PartDesign::Chamfer", "Chamfer004")
chamfer5.Base = (chamfer4, edges_at(chamfer4, [(40, 10, 42)]))
chamfer5.Size = 2
doc.recompute()

chamfer6 = body23.newObject("PartDesign::Chamfer", "Chamfer005")
chamfer6.Base = (chamfer5, edges_at(chamfer5, [(-5, 10, 42)]))
chamfer6.Size = 2
doc.recompute()

chamfer7 = body23.newObject("PartDesign::Chamfer", "Chamfer006")
chamfer7.Base = (chamfer6, edges_at(chamfer6, [(-2.5, 20, 0)]))
chamfer7.Size = 2
doc.recompute()

boolean21 = body23.newObject("PartDesign::Boolean", "Boolean020")
boolean21.Type = "Fuse"
boolean21.addObjects([body8])
doc.recompute()

boolean22 = body23.newObject("PartDesign::Boolean", "Boolean021")
boolean22.Type = "Cut"
boolean22.addObjects([body4])

doc.recompute()
